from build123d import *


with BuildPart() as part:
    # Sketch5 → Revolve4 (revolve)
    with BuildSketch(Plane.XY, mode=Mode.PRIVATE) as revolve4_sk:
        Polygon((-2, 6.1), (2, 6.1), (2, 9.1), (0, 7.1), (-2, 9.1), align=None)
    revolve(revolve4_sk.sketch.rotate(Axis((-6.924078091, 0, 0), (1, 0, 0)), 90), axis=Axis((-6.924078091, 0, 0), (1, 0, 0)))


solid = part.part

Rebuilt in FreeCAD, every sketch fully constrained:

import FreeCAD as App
import Part
import Sketcher

doc = App.newDocument("Part")
body = doc.addObject("PartDesign::Body", "Body")

sketch1 = body.newObject("Sketcher::SketchObject", "Sketch")
sketch1.AttachmentSupport = (doc.getObject("XY_Plane"), [""])
sketch1.MapMode = "FlatFace"
sketch1.addGeometry(Part.LineSegment(App.Vector(-2, 6.1, 0), App.Vector(2, 6.1, 0)), False)
sketch1.addGeometry(Part.LineSegment(App.Vector(2, 6.1, 0), App.Vector(2, 9.1, 0)), False)
sketch1.addGeometry(Part.LineSegment(App.Vector(2, 9.1, 0), App.Vector(0, 7.1, 0)), False)
sketch1.addGeometry(Part.LineSegment(App.Vector(0, 7.1, 0), App.Vector(-2, 9.1, 0)), False)
sketch1.addGeometry(Part.LineSegment(App.Vector(-2, 9.1, 0), App.Vector(-2, 6.1, 0)), False)
sketch1.addConstraint(Sketcher.Constraint("Coincident", 0, 2, 1, 1))
sketch1.addConstraint(Sketcher.Constraint("Coincident", 1, 2, 2, 1))
sketch1.addConstraint(Sketcher.Constraint("Coincident", 2, 2, 3, 1))
sketch1.addConstraint(Sketcher.Constraint("Coincident", 3, 2, 4, 1))
sketch1.addConstraint(Sketcher.Constraint("Coincident", 4, 2, 0, 1))
sketch1.addConstraint(Sketcher.Constraint("Horizontal", 0))
sketch1.addConstraint(Sketcher.Constraint("Vertical", 1))
sketch1.addConstraint(Sketcher.Constraint("Vertical", 4))
sketch1.addConstraint(Sketcher.Constraint("Symmetric", 1, 2, 3, 2, -2))
sketch1.addConstraint(Sketcher.Constraint("PointOnObject", 2, 2, -2))
sketch1.addConstraint(Sketcher.Constraint("Perpendicular", 2, 3))
sketch1.addConstraint(Sketcher.Constraint("DistanceX", 0, 1, 0, 2, 4.0))
sketch1.addConstraint(Sketcher.Constraint("DistanceY", 1, 1, 1, 2, 3.0))
sketch1.addConstraint(Sketcher.Constraint("DistanceY", -1, 1, 0, 2, 6.1))
revolution = body.newObject("PartDesign::Revolution", "Revolution")
revolution.Profile = sketch1
revolution.ReferenceAxis = (sketch1, ["H_Axis"])
revolution.Angle = 360

doc.recompute()
